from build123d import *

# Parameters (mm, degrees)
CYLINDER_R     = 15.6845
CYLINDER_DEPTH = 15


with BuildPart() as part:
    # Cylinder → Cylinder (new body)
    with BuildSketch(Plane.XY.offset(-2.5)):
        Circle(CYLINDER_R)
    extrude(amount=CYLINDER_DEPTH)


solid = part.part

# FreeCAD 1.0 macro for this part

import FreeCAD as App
import Part
import Sketcher
Q = App.Units.Quantity

doc = App.newDocument("Part")
body = doc.addObject("PartDesign::Body", "Body")

# Sketch on XY plane
sketch1 = body.newObject("Sketcher::SketchObject", "Sketch")
sketch1.AttachmentSupport = (doc.getObject("XY_Plane"), [""])
sketch1.MapMode = "FlatFace"
sketch1.AttachmentOffset = App.Placement(App.Vector(0, 0, -2.5), App.Rotation())
sketch1.addGeometry(Part.Circle(App.Vector(0, 0, 0), App.Vector(0, 0, 1), 16), False)
sketch1.addConstraint([
    Sketcher.Constraint("Coincident", 0, 3, -1, 1),
    Sketcher.Constraint("Diameter", 0, Q("31.369 mm")),
])
pad1 = body.newObject("PartDesign::Pad", "Pad")
pad1.Profile = sketch1
pad1.Length = 15

doc.recompute()
